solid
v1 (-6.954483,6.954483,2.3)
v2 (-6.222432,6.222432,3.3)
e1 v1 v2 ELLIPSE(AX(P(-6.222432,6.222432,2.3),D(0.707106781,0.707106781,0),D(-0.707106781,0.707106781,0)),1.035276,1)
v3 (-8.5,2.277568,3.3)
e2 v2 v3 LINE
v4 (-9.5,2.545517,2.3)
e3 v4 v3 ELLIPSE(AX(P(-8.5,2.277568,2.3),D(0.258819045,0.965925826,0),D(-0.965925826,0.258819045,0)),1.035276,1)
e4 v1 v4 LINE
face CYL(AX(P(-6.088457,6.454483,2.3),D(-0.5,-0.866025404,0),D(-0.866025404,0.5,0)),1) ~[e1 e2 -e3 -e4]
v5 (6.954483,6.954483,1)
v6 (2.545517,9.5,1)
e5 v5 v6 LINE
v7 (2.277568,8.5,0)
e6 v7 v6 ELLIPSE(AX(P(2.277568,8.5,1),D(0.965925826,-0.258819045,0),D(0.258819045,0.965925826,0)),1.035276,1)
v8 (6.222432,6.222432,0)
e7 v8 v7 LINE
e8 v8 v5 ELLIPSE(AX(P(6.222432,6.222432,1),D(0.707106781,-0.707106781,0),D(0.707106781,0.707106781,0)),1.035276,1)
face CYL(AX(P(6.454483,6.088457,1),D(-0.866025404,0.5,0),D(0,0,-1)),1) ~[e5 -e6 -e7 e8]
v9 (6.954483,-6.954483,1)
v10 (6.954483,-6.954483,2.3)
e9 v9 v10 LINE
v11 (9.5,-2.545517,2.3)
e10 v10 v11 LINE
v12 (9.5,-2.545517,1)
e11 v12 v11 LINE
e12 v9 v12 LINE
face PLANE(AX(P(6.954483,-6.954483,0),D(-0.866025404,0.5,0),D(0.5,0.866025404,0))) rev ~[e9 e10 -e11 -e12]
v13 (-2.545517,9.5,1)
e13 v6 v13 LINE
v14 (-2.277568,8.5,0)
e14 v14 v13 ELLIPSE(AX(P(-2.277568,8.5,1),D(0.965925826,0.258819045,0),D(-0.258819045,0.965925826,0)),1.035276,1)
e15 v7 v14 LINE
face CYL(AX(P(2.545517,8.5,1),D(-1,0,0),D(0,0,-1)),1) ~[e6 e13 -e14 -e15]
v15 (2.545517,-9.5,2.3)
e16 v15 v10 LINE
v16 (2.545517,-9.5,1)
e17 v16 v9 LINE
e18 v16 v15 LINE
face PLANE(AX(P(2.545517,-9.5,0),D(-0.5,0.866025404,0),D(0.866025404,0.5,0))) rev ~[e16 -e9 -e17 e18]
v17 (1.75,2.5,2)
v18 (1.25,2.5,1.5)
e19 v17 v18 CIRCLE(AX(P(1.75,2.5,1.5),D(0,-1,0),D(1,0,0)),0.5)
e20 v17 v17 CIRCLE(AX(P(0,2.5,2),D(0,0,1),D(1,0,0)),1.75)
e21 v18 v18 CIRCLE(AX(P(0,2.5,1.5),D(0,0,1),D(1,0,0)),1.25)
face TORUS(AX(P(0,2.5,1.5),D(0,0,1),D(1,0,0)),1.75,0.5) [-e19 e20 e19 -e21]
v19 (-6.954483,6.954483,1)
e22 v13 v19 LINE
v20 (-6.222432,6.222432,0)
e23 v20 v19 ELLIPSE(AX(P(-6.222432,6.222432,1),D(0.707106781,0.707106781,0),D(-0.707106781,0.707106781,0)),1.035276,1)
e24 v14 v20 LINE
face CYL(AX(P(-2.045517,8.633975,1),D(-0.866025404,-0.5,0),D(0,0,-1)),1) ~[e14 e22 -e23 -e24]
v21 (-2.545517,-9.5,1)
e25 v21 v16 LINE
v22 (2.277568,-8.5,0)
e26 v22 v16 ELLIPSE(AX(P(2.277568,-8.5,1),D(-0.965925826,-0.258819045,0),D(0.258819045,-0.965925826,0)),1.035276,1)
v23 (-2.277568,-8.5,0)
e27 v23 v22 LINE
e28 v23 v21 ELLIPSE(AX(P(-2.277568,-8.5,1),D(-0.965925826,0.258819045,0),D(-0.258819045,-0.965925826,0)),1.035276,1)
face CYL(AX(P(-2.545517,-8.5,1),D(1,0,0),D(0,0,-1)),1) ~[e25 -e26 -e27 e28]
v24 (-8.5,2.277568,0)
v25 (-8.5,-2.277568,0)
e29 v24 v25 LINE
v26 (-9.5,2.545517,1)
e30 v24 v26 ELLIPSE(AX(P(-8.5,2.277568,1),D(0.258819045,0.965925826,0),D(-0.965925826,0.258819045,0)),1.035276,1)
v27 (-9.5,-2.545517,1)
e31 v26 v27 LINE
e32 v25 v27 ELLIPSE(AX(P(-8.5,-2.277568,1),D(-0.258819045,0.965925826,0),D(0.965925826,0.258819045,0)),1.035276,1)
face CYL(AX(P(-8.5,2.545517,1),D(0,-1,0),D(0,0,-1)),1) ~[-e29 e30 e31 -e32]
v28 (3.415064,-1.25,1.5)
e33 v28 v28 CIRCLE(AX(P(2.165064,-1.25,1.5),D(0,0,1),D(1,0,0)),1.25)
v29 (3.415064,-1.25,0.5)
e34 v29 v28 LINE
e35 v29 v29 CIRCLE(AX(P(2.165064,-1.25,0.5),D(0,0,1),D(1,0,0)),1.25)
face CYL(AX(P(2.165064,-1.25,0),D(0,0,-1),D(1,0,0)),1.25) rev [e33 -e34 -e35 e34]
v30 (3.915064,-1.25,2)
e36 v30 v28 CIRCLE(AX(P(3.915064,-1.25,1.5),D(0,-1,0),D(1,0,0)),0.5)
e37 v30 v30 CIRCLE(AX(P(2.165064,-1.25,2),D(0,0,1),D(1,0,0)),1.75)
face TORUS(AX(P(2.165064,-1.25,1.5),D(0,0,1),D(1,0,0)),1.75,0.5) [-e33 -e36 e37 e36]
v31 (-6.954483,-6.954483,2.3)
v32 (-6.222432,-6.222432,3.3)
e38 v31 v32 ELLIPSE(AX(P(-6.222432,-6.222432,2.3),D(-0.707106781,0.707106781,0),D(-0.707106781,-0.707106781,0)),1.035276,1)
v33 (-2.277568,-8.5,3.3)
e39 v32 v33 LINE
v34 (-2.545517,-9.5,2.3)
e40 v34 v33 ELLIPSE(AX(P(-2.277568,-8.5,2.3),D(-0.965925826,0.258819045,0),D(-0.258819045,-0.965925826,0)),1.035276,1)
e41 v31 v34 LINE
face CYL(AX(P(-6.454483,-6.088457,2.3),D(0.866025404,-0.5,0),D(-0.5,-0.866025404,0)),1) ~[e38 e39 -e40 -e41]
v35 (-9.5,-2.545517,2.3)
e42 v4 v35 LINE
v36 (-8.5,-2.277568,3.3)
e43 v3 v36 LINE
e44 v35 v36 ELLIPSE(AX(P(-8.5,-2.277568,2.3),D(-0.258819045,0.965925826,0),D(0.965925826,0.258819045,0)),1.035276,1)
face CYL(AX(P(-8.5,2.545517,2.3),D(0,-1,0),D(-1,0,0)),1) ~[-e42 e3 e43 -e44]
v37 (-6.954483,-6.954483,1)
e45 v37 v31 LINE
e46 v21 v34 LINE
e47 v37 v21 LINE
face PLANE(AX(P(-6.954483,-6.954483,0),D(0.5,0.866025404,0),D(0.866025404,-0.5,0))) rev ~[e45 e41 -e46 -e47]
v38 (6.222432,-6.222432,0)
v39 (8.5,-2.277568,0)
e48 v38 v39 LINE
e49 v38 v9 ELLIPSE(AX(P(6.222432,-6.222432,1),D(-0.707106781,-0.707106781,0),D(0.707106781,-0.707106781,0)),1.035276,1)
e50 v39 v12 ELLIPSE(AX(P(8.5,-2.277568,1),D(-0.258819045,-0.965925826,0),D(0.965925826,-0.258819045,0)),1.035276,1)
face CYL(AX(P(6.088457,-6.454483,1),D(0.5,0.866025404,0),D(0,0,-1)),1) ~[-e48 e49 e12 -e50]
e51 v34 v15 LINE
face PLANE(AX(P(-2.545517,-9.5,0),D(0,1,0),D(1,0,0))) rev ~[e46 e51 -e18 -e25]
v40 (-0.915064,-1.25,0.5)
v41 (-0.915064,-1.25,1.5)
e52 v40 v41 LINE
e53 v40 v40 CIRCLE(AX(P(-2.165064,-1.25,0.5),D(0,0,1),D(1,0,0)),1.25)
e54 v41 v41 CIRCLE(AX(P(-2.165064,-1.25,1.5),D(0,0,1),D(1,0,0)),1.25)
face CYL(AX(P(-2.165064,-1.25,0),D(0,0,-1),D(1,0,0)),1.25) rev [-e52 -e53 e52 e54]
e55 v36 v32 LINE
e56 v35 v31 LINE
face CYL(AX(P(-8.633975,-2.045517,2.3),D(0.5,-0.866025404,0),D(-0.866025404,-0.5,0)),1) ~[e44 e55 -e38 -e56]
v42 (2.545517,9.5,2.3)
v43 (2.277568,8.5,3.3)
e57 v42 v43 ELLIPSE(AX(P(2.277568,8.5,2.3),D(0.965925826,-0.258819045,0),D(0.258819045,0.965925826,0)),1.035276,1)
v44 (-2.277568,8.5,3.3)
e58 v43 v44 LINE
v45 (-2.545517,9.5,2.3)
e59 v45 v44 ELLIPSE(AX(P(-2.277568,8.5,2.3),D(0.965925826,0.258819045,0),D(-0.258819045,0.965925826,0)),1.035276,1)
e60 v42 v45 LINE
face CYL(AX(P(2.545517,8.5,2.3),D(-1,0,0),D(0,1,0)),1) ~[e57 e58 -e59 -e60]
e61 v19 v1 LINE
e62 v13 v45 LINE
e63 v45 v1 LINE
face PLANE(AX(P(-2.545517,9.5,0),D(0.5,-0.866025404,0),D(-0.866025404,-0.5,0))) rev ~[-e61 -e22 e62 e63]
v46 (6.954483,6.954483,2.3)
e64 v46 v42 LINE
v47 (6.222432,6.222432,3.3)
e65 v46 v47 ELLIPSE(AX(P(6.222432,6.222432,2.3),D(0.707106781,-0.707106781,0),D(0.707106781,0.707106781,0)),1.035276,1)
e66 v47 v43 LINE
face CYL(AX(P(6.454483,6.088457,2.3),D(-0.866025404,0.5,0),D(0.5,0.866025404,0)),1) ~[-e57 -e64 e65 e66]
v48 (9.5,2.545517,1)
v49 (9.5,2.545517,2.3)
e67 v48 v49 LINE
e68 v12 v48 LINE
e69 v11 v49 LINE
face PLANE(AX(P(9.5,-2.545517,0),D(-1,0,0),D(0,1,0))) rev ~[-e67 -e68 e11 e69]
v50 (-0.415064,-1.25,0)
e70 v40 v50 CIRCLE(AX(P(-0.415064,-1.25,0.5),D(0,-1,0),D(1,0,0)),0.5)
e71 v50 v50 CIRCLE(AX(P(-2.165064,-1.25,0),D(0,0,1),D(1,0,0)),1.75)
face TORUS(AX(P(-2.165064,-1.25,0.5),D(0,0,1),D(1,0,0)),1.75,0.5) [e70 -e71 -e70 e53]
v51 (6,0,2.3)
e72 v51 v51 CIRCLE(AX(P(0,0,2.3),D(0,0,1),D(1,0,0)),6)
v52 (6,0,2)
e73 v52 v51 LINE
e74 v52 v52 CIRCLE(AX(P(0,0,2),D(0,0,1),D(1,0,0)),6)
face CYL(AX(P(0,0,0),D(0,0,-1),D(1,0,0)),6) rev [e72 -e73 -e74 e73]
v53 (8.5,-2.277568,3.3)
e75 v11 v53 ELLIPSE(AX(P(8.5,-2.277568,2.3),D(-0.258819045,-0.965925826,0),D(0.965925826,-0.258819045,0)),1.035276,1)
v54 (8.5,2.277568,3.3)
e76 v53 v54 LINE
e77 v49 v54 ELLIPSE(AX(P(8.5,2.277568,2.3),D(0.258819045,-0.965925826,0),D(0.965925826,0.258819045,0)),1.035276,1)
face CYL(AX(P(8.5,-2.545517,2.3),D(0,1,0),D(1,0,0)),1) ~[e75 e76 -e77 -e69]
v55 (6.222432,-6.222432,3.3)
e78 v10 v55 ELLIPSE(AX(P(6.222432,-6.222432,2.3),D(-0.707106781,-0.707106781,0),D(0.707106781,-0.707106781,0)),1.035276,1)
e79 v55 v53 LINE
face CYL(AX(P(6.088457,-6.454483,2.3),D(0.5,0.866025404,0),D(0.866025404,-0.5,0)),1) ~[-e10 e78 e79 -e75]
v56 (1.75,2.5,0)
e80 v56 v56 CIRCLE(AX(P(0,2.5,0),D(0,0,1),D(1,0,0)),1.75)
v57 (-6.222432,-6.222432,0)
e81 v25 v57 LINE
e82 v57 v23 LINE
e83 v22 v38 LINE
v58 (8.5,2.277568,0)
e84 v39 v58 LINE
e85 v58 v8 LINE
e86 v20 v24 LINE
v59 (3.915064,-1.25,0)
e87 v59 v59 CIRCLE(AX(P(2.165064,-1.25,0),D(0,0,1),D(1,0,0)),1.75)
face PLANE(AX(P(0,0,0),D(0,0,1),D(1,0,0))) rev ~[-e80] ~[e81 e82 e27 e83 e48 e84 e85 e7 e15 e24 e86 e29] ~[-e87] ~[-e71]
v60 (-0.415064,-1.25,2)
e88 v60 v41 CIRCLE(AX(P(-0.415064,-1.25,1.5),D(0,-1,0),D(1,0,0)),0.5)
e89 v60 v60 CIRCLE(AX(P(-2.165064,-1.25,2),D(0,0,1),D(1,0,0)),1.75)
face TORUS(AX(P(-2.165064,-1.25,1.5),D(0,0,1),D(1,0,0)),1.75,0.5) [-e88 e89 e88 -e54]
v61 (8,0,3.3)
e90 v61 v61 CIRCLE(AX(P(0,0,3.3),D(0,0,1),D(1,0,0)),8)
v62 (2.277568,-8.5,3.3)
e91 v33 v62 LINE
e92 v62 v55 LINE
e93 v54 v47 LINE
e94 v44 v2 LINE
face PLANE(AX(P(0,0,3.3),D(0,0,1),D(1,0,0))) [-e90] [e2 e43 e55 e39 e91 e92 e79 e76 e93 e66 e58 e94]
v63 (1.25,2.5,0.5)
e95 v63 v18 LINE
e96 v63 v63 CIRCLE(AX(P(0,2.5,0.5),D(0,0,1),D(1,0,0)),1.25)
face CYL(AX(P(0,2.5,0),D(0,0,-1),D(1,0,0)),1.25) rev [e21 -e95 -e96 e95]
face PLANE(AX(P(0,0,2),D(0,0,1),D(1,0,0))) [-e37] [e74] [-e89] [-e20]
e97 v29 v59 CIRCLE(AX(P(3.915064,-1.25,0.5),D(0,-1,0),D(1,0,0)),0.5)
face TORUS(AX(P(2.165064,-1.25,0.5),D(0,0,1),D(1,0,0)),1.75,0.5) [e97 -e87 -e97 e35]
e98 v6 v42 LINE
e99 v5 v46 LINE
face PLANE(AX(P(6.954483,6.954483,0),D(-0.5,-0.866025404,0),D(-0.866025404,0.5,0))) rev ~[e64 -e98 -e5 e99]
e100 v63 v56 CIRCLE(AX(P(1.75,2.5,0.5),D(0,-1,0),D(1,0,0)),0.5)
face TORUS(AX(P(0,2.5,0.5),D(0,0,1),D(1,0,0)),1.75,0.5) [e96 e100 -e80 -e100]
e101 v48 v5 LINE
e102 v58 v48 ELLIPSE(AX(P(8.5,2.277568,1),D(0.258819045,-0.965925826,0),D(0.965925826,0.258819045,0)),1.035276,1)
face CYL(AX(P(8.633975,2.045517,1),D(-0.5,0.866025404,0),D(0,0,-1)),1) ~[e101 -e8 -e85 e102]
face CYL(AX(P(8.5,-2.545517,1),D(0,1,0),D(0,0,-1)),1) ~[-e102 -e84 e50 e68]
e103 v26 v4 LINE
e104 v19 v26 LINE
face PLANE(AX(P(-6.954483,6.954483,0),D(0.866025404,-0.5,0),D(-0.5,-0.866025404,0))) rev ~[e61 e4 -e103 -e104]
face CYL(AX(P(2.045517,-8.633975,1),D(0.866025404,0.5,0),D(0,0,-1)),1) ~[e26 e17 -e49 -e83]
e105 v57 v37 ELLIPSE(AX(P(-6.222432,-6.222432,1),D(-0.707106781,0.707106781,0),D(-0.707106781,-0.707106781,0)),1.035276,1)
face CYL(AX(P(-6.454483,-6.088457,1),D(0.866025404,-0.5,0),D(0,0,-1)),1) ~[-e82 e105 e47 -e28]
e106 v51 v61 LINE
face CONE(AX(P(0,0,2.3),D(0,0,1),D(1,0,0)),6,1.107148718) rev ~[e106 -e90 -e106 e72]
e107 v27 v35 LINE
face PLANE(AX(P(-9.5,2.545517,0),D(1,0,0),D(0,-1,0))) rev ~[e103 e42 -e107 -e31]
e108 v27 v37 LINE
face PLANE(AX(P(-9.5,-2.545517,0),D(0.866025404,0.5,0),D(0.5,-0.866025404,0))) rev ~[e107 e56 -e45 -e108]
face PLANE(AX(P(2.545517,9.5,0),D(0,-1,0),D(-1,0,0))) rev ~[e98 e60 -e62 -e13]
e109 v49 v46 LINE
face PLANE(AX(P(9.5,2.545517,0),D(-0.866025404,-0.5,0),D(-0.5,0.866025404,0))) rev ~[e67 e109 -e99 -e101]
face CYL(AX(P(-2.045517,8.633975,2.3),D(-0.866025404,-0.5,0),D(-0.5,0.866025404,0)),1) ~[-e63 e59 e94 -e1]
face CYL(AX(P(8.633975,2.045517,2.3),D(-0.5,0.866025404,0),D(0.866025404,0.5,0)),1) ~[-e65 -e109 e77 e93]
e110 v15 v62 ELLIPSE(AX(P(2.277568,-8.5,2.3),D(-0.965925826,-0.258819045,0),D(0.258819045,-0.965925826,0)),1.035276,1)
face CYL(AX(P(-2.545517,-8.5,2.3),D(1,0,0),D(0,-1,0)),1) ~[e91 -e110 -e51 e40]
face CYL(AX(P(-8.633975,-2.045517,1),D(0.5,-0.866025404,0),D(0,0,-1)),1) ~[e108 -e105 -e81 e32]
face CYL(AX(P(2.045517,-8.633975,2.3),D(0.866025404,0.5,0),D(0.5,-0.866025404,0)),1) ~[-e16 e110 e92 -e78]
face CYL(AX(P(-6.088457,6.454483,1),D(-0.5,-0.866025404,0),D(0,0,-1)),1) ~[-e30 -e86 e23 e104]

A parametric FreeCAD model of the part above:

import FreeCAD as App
import Part
import Sketcher
from FreeCAD import Vector
Q = App.Units.Quantity


def edges_at(feature, points):
    """Names of the edges that pass closest to the given points."""
    edges = feature.Shape.Edges
    near = lambda p: min(range(len(edges)), key=lambda i: edges[i].distToShape(Part.Vertex(*p))[0])
    return sorted({f"Edge{near(p) + 1}" for p in points})

doc = App.newDocument("Part")
body = doc.addObject("PartDesign::Body", "Body")

sketch1 = doc.addObject("Sketcher::SketchObject", "Sketch")
body.addObject(sketch1)
sketch1.AttachmentSupport = (doc.XY_Plane, [""])
sketch1.MapMode = "FlatFace"
sketch1.addGeometry(Part.LineSegment(Vector(3, 10, 0), Vector(-3, 10, 0)), False)
sketch1.addGeometry(Part.LineSegment(Vector(-3, 10, 0), Vector(-7, 7, 0)), False)
sketch1.addGeometry(Part.LineSegment(Vector(-7, 7, 0), Vector(-10, 3, 0)), False)
sketch1.addGeometry(Part.LineSegment(Vector(-10, 3, 0), Vector(-10, -3, 0)), False)
sketch1.addGeometry(Part.LineSegment(Vector(-10, -3, 0), Vector(-7, -7, 0)), False)
sketch1.addGeometry(Part.LineSegment(Vector(-7, -7, 0), Vector(-3, -10, 0)), False)
sketch1.addGeometry(Part.LineSegment(Vector(-3, -10, 0), Vector(3, -10, 0)), False)
sketch1.addGeometry(Part.LineSegment(Vector(3, -10, 0), Vector(7, -7, 0)), False)
sketch1.addGeometry(Part.LineSegment(Vector(7, -7, 0), Vector(10, -3, 0)), False)
sketch1.addGeometry(Part.LineSegment(Vector(10, -3, 0), Vector(10, 3, 0)), False)
sketch1.addGeometry(Part.LineSegment(Vector(10, 3, 0), Vector(7, 7, 0)), False)
sketch1.addGeometry(Part.LineSegment(Vector(7, 7, 0), Vector(3, 10, 0)), False)
sketch1.addGeometry(Part.Circle(Vector(0, 0, 0), Vector(0, 0, 1), 6), False)
sketch1.addConstraint(Sketcher.Constraint("Coincident", 0, 2, 1, 1))
sketch1.addConstraint(Sketcher.Constraint("Coincident", 1, 2, 2, 1))
sketch1.addConstraint(Sketcher.Constraint("Coincident", 2, 2, 3, 1))
sketch1.addConstraint(Sketcher.Constraint("Coincident", 3, 2, 4, 1))
sketch1.addConstraint(Sketcher.Constraint("Coincident", 4, 2, 5, 1))
sketch1.addConstraint(Sketcher.Constraint("Coincident", 5, 2, 6, 1))
sketch1.addConstraint(Sketcher.Constraint("Coincident", 6, 2, 7, 1))
sketch1.addConstraint(Sketcher.Constraint("Coincident", 7, 2, 8, 1))
sketch1.addConstraint(Sketcher.Constraint("Coincident", 8, 2, 9, 1))
sketch1.addConstraint(Sketcher.Constraint("Coincident", 9, 2, 10, 1))
sketch1.addConstraint(Sketcher.Constraint("Coincident", 10, 2, 11, 1))
sketch1.addConstraint(Sketcher.Constraint("Coincident", 11, 2, 0, 1))
sketch1.addConstraint(Sketcher.Constraint("Horizontal", 0))
sketch1.addConstraint(Sketcher.Constraint("Vertical", 3))
sketch1.addConstraint(Sketcher.Constraint("Horizontal", 6))
sketch1.addConstraint(Sketcher.Constraint("Vertical", 9))
sketch1.addConstraint(Sketcher.Constraint("Coincident", 12, 3, -1, 1))
sketch1.addConstraint(Sketcher.Constraint("Symmetric", 0, 2, 6, 2, -1, 1))
sketch1.addConstraint(Sketcher.Constraint("Symmetric", 1, 2, 7, 2, -1, 1))
sketch1.addConstraint(Sketcher.Constraint("Symmetric", 2, 2, 8, 2, -1, 1))
sketch1.addConstraint(Sketcher.Constraint("Symmetric", 4, 2, 10, 2, -1, 1))
sketch1.addConstraint(Sketcher.Constraint("Symmetric", 4, 2, 7, 2, -2))
sketch1.addConstraint(Sketcher.Constraint("Perpendicular", 1, 4))
sketch1.addConstraint(Sketcher.Constraint("Perpendicular", 2, 5))
sketch1.addConstraint(Sketcher.Constraint("Perpendicular", 7, 10))
sketch1.addConstraint(Sketcher.Constraint("Perpendicular", 8, 11))
sketch1.addConstraint(Sketcher.Constraint("Horizontal", 3, 2, 8, 2))
sketch1.addConstraint(Sketcher.Constraint("Equal", 6, 3))
sketch1.addConstraint(Sketcher.Constraint("Equal", 1, 2))
sketch1.addConstraint(Sketcher.Constraint("Diameter", 12, Q("12 mm")))
sketch1.addConstraint(Sketcher.Constraint("Angle", 1, Q("-150 deg")))
sketch1.addConstraint(Sketcher.Constraint("DistanceY", -1, 1, 0, 2, Q("9.5 mm")))
sketch1.addConstraint(Sketcher.Constraint("DistanceY", 3, 2, 1, 2, Q("9.5 mm")))
pad1 = doc.addObject("PartDesign::Pad", "Pad")
body.addObject(pad1)
pad1.Profile = sketch1
pad1.Length = 3.3

sketch2 = doc.addObject("Sketcher::SketchObject", "Sketch001")
body.addObject(sketch2)
sketch2.AttachmentSupport = (doc.XY_Plane, [""])
sketch2.MapMode = "FlatFace"
sketch2.addGeometry(Part.Circle(Vector(0, 0, 0), Vector(0, 0, 1), 6), False)
sketch2.addGeometry(Part.Circle(Vector(-2.2, -1.2, 0), Vector(0, 0, 1), 1.2), False)
sketch2.addGeometry(Part.Circle(Vector(2.2, -1.2, 0), Vector(0, 0, 1), 1.2), False)
sketch2.addGeometry(Part.Circle(Vector(0, 2.5, 0), Vector(0, 0, 1), 1.2), False)
sketch2.addConstraint(Sketcher.Constraint("Coincident", 0, 3, -1, 1))
sketch2.addConstraint(Sketcher.Constraint("Equal", 1, 2))
sketch2.addConstraint(Sketcher.Constraint("Equal", 2, 3))
sketch2.addConstraint(Sketcher.Constraint("Symmetric", 1, 3, 2, 3, -2))
sketch2.addConstraint(Sketcher.Constraint("PointOnObject", 3, 3, -2))
sketch2.addConstraint(Sketcher.Constraint("Diameter", 0, Q("12 mm")))
sketch2.addConstraint(Sketcher.Constraint("Diameter", 1, Q("2.5 mm")))
sketch2.addConstraint(Sketcher.Constraint("DistanceY", -1, 1, 3, 3, Q("2.5 mm")))
sketch2.addConstraint(Sketcher.Constraint("DistanceY", 1, 3, -1, 1, Q("1.25 mm")))
sketch2.addConstraint(Sketcher.Constraint("DistanceX", 1, 3, -1, 1, Q("2.165064 mm")))
pad2 = doc.addObject("PartDesign::Pad", "Pad001")
body.addObject(pad2)
pad2.Profile = sketch2
pad2.Length = 2
doc.recompute()

fillet = doc.addObject("PartDesign::Fillet", "Fillet")
body.addObject(fillet)
fillet.Base = (pad2, edges_at(pad2, [
    (-8.227, -4.75, 3.3),
    (-4.75, -8.227, 3.3),
    (0, -9.5, 3.3),
    (4.75, -8.227, 3.3),
    (8.227, -4.75, 3.3),
    (9.5, 0, 3.3),
    (8.227, 4.75, 3.3),
    (4.75, 8.227, 3.3),
    (0, 9.5, 3.3),
    (-4.75, 8.227, 3.3),
    (-8.227, 4.75, 3.3),
    (-9.5, 0, 3.3),
    (-8.227, -4.75, 0),
    (-4.75, -8.227, 0),
    (0, -9.5, 0),
    (4.75, -8.227, 0),
    (8.227, -4.75, 0),
    (9.5, 0, 0),
    (8.227, 4.75, 0),
    (4.75, 8.227, 0),
    (0, 9.5, 0),
    (-4.75, 8.227, 0),
    (-8.227, 4.75, 0),
    (-9.5, 0, 0),
]))
fillet.Radius = 1
doc.recompute()

chamfer = doc.addObject("PartDesign::Chamfer", "Chamfer")
body.addObject(chamfer)
chamfer.Base = (fillet, edges_at(fillet, [(-6, 0, 3.3)]))
chamfer.ChamferType = "Two distances"
chamfer.Size = 1
chamfer.Size2 = 2
chamfer.FlipDirection = True
doc.recompute()

fillet2 = doc.addObject("PartDesign::Fillet", "Fillet001")
body.addObject(fillet2)
fillet2.Base = (chamfer, edges_at(chamfer, [
    (-1.25, 2.5, 2),
    (0.915, -1.25, 2),
    (-3.415, -1.25, 2),
    (0.915, -1.25, 0),
    (-3.415, -1.25, 0),
    (-1.25, 2.5, 0),
]))
fillet2.Radius = 0.5

doc.recompute()
